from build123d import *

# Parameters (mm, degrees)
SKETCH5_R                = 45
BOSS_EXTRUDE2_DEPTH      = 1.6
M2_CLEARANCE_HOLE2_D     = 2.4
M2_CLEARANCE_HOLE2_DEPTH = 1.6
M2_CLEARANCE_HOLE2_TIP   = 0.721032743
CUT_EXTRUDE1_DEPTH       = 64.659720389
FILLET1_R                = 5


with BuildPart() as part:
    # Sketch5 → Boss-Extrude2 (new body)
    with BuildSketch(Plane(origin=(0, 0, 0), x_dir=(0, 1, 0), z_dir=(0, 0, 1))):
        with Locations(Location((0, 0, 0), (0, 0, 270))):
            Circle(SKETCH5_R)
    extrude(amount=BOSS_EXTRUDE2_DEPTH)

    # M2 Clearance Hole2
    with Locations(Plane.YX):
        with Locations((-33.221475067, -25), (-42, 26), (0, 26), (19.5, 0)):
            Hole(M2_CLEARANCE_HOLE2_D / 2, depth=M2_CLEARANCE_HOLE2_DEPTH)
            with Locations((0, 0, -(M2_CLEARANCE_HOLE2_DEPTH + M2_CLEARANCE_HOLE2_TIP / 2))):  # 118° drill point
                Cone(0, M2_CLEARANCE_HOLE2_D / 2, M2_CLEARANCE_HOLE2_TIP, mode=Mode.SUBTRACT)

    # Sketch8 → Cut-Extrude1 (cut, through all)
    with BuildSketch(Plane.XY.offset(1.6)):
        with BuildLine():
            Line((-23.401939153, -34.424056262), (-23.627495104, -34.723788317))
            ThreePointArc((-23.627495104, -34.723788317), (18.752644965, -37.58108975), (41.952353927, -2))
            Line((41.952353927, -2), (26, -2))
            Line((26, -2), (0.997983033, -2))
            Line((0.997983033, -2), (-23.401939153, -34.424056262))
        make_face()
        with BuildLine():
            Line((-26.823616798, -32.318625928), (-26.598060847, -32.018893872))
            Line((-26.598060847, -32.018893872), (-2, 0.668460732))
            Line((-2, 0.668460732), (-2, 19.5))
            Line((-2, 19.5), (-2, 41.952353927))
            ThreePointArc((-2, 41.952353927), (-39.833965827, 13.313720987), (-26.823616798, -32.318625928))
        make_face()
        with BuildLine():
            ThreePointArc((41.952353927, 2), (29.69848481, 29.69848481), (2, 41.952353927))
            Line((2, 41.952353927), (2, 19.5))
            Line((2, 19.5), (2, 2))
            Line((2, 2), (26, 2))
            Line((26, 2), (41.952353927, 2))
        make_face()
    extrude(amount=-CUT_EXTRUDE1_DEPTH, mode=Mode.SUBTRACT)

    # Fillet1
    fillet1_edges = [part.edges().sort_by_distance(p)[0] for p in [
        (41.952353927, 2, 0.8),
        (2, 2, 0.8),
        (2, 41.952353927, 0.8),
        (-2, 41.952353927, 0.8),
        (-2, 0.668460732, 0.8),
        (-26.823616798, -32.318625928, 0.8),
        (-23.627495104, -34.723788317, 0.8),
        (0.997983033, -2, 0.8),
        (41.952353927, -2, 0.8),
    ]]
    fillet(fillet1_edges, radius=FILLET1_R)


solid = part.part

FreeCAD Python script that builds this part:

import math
import FreeCAD as App
import Part
import Sketcher
from FreeCAD import Vector


def edges_at(feature, points):
    """Names of the edges that pass closest to the given points."""
    edges = feature.Shape.Edges
    near = lambda p: min(range(len(edges)), key=lambda i: edges[i].distToShape(Part.Vertex(*p))[0])
    return sorted({f"Edge{near(p) + 1}" for p in points})

doc = App.newDocument("Part")
params = doc.addObject("Spreadsheet::Sheet", "Params")
for row, (alias, value) in enumerate([
    ("sketch1_diameter", "90 mm"),
    ("pad1_length", "1.6 mm"),
    ("sketch2_diameter", "2.4 mm"),
    ("hole_diameter", "2.4 mm"),
    ("hole_depth", "1.6 mm"),
    ("sketch3_radius", "42 mm"),
    ("fillet_radius", "5 mm"),
], start=1):
    params.set(f"A{row}", alias)
    params.set(f"B{row}", "=" + value)
    params.setAlias(f"B{row}", alias)

body = doc.addObject("PartDesign::Body", "Body")

# Sketch on XY plane
sketch1 = body.newObject("Sketcher::SketchObject", "Sketch")
sketch1.AttachmentSupport = (doc.getObject("XY_Plane"), [""])
sketch1.MapMode = "FlatFace"
sketch1.addGeometry(Part.Circle(Vector(0, 0, 0), Vector(0, 0, 1), 45), False)
sketch1.addConstraint([
    Sketcher.Constraint("Coincident", 0, 3, -1, 1),
    Sketcher.Constraint("Diameter", 0, 90.0),
])
sketch1.setExpression("Constraints[1]", "Params.sketch1_diameter")
pad1 = body.newObject("PartDesign::Pad", "Pad")
pad1.Profile = sketch1
pad1.setExpression("Length", "Params.pad1_length")

# Sketch on XY plane
sketch2 = body.newObject("Sketcher::SketchObject", "Sketch001")
sketch2.AttachmentSupport = (doc.getObject("XY_Plane"), [""])
sketch2.MapMode = "FlatFace"
sketch2.addGeometry([
    Part.Circle(Vector(-25, -33.2, 0), Vector(0, 0, 1), 1.2),
    Part.Circle(Vector(26, -42, 0), Vector(0, 0, 1), 1.2),
    Part.Circle(Vector(26, 0, 0), Vector(0, 0, 1), 1.2),
    Part.Circle(Vector(0, 19.5, 0), Vector(0, 0, 1), 1.2),
], False)
sketch2.addConstraint([
    Sketcher.Constraint("Equal", 0, 1),
    Sketcher.Constraint("Equal", 1, 2),
    Sketcher.Constraint("Equal", 2, 3),
    Sketcher.Constraint("PointOnObject", 2, 3, -1),
    Sketcher.Constraint("PointOnObject", 3, 3, -2),
    Sketcher.Constraint("Vertical", 1, 3, 2, 3),
    Sketcher.Constraint("Diameter", 0, 2.4),
    Sketcher.Constraint("DistanceX", 0, 3, -1, 1, 25.0),
    Sketcher.Constraint("DistanceX", -1, 1, 1, 3, 26.0),
    Sketcher.Constraint("DistanceY", 1, 3, -1, 1, 42.0),
    Sketcher.Constraint("DistanceY", -1, 1, 3, 3, 19.5),
    Sketcher.Constraint("DistanceY", 0, 3, -1, 1, 33.221475),
])
sketch2.setExpression("Constraints[6]", "Params.sketch2_diameter")
doc.recompute()
hole = body.newObject("PartDesign::Hole", "Hole")
hole.Profile = sketch2
hole.ThreadType = "None"
hole.setExpression("Diameter", "Params.hole_diameter")
hole.DepthType = "Dimension"
hole.setExpression("Depth", "Params.hole_depth")
hole.DrillPoint = "Angled"
hole.DrillPointAngle = 118
hole.Reversed = True

# Sketch on XY plane
sketch3 = body.newObject("Sketcher::SketchObject", "Sketch002")
sketch3.AttachmentSupport = (doc.getObject("XY_Plane"), [""])
sketch3.MapMode = "FlatFace"
sketch3.AttachmentOffset = App.Placement(Vector(0, 0, 1.6), App.Rotation())
sketch3.addGeometry([
    Part.LineSegment(Vector(-23.4, -34.42, 0), Vector(-23.63, -34.72, 0)),  # 0
    Part.ArcOfCircle(Part.Circle(Vector(0, 0, 0), Vector(0, 0, 1), 42), math.radians(-124), math.radians(-3)),  # 1
    Part.LineSegment(Vector(41.95, -2, 0), Vector(1, -2, 0)),  # 2
    Part.LineSegment(Vector(1, -2, 0), Vector(-23.4, -34.42, 0)),  # 3
    Part.LineSegment(Vector(-26.82, -32.32, 0), Vector(-26.6, -32.02, 0)),  # 4
    Part.LineSegment(Vector(-26.6, -32.02, 0), Vector(-2, 0.67, 0)),  # 5
    Part.LineSegment(Vector(-2, 0.67, 0), Vector(-2, 41.95, 0)),  # 6
    Part.ArcOfCircle(Part.Circle(Vector(0, 0, 0), Vector(0, 0, 1), 42), math.radians(93), math.radians(230)),  # 7
    Part.ArcOfCircle(Part.Circle(Vector(0, 0, 0), Vector(0, 0, 1), 42), math.radians(3), math.radians(87)),  # 8
    Part.LineSegment(Vector(2, 41.95, 0), Vector(2, 2, 0)),  # 9
    Part.LineSegment(Vector(2, 2, 0), Vector(41.95, 2, 0)),  # 10
], False)
sketch3.addConstraint([
    Sketcher.Constraint("Coincident", 0, 2, 1, 1),
    Sketcher.Constraint("Coincident", 1, 2, 2, 1),
    Sketcher.Constraint("Coincident", 2, 2, 3, 1),
    Sketcher.Constraint("Coincident", 3, 2, 0, 1),
    Sketcher.Constraint("Coincident", 4, 2, 5, 1),
    Sketcher.Constraint("Coincident", 5, 2, 6, 1),
    Sketcher.Constraint("Coincident", 6, 2, 7, 1),
    Sketcher.Constraint("Coincident", 7, 2, 4, 1),
    Sketcher.Constraint("Coincident", 8, 2, 9, 1),
    Sketcher.Constraint("Coincident", 9, 2, 10, 1),
    Sketcher.Constraint("Coincident", 10, 2, 8, 1),
    Sketcher.Constraint("Horizontal", 2),
    Sketcher.Constraint("Vertical", 6),
    Sketcher.Constraint("Vertical", 9),
    Sketcher.Constraint("Horizontal", 10),
    Sketcher.Constraint("Coincident", 1, 3, -1, 1),
    Sketcher.Constraint("Coincident", 7, 3, -1, 1),
    Sketcher.Constraint("Coincident", 8, 3, -1, 1),
    Sketcher.Constraint("Equal", 1, 7),
    Sketcher.Constraint("Equal", 7, 8),
    Sketcher.Constraint("Parallel", 0, 3),
    Sketcher.Constraint("Parallel", 3, 4),
    Sketcher.Constraint("Parallel", 4, 5),
    Sketcher.Constraint("Horizontal", 6, 2, 8, 2),
    Sketcher.Constraint("Vertical", 1, 2, 10, 2),
    Sketcher.Constraint("Equal", 10, 9),
    Sketcher.Constraint("Equal", 0, 4),
    Sketcher.Constraint("Radius", 1, 42.0),
    Sketcher.Constraint("DistanceY", 1, 2, -1, 1, 2.0),
    Sketcher.Constraint("DistanceX", 2, 2, 2, 1, 40.954371),
    Sketcher.Constraint("DistanceX", 7, 2, 2, 2, 27.8216),
    Sketcher.Constraint("Distance", 0, 0.37512),
    Sketcher.Constraint("Distance", 3, 40.579251),
])
sketch3.setExpression("Constraints[27]", "Params.sketch3_radius")
pocket1 = body.newObject("PartDesign::Pocket", "Pocket")
pocket1.Profile = sketch3
pocket1.Type = "ThroughAll"
doc.recompute()

fillet = body.newObject("PartDesign::Fillet", "Fillet")
fillet.Base = (pocket1, edges_at(pocket1, [
    (41.952, 2, 0.8),
    (2, 2, 0.8),
    (2, 41.952, 0.8),
    (-2, 41.952, 0.8),
    (-2, 0.668, 0.8),
    (-26.824, -32.319, 0.8),
    (-23.627, -34.724, 0.8),
    (0.998, -2, 0.8),
    (41.952, -2, 0.8),
]))
fillet.setExpression("Radius", "Params.fillet_radius")

doc.recompute()
